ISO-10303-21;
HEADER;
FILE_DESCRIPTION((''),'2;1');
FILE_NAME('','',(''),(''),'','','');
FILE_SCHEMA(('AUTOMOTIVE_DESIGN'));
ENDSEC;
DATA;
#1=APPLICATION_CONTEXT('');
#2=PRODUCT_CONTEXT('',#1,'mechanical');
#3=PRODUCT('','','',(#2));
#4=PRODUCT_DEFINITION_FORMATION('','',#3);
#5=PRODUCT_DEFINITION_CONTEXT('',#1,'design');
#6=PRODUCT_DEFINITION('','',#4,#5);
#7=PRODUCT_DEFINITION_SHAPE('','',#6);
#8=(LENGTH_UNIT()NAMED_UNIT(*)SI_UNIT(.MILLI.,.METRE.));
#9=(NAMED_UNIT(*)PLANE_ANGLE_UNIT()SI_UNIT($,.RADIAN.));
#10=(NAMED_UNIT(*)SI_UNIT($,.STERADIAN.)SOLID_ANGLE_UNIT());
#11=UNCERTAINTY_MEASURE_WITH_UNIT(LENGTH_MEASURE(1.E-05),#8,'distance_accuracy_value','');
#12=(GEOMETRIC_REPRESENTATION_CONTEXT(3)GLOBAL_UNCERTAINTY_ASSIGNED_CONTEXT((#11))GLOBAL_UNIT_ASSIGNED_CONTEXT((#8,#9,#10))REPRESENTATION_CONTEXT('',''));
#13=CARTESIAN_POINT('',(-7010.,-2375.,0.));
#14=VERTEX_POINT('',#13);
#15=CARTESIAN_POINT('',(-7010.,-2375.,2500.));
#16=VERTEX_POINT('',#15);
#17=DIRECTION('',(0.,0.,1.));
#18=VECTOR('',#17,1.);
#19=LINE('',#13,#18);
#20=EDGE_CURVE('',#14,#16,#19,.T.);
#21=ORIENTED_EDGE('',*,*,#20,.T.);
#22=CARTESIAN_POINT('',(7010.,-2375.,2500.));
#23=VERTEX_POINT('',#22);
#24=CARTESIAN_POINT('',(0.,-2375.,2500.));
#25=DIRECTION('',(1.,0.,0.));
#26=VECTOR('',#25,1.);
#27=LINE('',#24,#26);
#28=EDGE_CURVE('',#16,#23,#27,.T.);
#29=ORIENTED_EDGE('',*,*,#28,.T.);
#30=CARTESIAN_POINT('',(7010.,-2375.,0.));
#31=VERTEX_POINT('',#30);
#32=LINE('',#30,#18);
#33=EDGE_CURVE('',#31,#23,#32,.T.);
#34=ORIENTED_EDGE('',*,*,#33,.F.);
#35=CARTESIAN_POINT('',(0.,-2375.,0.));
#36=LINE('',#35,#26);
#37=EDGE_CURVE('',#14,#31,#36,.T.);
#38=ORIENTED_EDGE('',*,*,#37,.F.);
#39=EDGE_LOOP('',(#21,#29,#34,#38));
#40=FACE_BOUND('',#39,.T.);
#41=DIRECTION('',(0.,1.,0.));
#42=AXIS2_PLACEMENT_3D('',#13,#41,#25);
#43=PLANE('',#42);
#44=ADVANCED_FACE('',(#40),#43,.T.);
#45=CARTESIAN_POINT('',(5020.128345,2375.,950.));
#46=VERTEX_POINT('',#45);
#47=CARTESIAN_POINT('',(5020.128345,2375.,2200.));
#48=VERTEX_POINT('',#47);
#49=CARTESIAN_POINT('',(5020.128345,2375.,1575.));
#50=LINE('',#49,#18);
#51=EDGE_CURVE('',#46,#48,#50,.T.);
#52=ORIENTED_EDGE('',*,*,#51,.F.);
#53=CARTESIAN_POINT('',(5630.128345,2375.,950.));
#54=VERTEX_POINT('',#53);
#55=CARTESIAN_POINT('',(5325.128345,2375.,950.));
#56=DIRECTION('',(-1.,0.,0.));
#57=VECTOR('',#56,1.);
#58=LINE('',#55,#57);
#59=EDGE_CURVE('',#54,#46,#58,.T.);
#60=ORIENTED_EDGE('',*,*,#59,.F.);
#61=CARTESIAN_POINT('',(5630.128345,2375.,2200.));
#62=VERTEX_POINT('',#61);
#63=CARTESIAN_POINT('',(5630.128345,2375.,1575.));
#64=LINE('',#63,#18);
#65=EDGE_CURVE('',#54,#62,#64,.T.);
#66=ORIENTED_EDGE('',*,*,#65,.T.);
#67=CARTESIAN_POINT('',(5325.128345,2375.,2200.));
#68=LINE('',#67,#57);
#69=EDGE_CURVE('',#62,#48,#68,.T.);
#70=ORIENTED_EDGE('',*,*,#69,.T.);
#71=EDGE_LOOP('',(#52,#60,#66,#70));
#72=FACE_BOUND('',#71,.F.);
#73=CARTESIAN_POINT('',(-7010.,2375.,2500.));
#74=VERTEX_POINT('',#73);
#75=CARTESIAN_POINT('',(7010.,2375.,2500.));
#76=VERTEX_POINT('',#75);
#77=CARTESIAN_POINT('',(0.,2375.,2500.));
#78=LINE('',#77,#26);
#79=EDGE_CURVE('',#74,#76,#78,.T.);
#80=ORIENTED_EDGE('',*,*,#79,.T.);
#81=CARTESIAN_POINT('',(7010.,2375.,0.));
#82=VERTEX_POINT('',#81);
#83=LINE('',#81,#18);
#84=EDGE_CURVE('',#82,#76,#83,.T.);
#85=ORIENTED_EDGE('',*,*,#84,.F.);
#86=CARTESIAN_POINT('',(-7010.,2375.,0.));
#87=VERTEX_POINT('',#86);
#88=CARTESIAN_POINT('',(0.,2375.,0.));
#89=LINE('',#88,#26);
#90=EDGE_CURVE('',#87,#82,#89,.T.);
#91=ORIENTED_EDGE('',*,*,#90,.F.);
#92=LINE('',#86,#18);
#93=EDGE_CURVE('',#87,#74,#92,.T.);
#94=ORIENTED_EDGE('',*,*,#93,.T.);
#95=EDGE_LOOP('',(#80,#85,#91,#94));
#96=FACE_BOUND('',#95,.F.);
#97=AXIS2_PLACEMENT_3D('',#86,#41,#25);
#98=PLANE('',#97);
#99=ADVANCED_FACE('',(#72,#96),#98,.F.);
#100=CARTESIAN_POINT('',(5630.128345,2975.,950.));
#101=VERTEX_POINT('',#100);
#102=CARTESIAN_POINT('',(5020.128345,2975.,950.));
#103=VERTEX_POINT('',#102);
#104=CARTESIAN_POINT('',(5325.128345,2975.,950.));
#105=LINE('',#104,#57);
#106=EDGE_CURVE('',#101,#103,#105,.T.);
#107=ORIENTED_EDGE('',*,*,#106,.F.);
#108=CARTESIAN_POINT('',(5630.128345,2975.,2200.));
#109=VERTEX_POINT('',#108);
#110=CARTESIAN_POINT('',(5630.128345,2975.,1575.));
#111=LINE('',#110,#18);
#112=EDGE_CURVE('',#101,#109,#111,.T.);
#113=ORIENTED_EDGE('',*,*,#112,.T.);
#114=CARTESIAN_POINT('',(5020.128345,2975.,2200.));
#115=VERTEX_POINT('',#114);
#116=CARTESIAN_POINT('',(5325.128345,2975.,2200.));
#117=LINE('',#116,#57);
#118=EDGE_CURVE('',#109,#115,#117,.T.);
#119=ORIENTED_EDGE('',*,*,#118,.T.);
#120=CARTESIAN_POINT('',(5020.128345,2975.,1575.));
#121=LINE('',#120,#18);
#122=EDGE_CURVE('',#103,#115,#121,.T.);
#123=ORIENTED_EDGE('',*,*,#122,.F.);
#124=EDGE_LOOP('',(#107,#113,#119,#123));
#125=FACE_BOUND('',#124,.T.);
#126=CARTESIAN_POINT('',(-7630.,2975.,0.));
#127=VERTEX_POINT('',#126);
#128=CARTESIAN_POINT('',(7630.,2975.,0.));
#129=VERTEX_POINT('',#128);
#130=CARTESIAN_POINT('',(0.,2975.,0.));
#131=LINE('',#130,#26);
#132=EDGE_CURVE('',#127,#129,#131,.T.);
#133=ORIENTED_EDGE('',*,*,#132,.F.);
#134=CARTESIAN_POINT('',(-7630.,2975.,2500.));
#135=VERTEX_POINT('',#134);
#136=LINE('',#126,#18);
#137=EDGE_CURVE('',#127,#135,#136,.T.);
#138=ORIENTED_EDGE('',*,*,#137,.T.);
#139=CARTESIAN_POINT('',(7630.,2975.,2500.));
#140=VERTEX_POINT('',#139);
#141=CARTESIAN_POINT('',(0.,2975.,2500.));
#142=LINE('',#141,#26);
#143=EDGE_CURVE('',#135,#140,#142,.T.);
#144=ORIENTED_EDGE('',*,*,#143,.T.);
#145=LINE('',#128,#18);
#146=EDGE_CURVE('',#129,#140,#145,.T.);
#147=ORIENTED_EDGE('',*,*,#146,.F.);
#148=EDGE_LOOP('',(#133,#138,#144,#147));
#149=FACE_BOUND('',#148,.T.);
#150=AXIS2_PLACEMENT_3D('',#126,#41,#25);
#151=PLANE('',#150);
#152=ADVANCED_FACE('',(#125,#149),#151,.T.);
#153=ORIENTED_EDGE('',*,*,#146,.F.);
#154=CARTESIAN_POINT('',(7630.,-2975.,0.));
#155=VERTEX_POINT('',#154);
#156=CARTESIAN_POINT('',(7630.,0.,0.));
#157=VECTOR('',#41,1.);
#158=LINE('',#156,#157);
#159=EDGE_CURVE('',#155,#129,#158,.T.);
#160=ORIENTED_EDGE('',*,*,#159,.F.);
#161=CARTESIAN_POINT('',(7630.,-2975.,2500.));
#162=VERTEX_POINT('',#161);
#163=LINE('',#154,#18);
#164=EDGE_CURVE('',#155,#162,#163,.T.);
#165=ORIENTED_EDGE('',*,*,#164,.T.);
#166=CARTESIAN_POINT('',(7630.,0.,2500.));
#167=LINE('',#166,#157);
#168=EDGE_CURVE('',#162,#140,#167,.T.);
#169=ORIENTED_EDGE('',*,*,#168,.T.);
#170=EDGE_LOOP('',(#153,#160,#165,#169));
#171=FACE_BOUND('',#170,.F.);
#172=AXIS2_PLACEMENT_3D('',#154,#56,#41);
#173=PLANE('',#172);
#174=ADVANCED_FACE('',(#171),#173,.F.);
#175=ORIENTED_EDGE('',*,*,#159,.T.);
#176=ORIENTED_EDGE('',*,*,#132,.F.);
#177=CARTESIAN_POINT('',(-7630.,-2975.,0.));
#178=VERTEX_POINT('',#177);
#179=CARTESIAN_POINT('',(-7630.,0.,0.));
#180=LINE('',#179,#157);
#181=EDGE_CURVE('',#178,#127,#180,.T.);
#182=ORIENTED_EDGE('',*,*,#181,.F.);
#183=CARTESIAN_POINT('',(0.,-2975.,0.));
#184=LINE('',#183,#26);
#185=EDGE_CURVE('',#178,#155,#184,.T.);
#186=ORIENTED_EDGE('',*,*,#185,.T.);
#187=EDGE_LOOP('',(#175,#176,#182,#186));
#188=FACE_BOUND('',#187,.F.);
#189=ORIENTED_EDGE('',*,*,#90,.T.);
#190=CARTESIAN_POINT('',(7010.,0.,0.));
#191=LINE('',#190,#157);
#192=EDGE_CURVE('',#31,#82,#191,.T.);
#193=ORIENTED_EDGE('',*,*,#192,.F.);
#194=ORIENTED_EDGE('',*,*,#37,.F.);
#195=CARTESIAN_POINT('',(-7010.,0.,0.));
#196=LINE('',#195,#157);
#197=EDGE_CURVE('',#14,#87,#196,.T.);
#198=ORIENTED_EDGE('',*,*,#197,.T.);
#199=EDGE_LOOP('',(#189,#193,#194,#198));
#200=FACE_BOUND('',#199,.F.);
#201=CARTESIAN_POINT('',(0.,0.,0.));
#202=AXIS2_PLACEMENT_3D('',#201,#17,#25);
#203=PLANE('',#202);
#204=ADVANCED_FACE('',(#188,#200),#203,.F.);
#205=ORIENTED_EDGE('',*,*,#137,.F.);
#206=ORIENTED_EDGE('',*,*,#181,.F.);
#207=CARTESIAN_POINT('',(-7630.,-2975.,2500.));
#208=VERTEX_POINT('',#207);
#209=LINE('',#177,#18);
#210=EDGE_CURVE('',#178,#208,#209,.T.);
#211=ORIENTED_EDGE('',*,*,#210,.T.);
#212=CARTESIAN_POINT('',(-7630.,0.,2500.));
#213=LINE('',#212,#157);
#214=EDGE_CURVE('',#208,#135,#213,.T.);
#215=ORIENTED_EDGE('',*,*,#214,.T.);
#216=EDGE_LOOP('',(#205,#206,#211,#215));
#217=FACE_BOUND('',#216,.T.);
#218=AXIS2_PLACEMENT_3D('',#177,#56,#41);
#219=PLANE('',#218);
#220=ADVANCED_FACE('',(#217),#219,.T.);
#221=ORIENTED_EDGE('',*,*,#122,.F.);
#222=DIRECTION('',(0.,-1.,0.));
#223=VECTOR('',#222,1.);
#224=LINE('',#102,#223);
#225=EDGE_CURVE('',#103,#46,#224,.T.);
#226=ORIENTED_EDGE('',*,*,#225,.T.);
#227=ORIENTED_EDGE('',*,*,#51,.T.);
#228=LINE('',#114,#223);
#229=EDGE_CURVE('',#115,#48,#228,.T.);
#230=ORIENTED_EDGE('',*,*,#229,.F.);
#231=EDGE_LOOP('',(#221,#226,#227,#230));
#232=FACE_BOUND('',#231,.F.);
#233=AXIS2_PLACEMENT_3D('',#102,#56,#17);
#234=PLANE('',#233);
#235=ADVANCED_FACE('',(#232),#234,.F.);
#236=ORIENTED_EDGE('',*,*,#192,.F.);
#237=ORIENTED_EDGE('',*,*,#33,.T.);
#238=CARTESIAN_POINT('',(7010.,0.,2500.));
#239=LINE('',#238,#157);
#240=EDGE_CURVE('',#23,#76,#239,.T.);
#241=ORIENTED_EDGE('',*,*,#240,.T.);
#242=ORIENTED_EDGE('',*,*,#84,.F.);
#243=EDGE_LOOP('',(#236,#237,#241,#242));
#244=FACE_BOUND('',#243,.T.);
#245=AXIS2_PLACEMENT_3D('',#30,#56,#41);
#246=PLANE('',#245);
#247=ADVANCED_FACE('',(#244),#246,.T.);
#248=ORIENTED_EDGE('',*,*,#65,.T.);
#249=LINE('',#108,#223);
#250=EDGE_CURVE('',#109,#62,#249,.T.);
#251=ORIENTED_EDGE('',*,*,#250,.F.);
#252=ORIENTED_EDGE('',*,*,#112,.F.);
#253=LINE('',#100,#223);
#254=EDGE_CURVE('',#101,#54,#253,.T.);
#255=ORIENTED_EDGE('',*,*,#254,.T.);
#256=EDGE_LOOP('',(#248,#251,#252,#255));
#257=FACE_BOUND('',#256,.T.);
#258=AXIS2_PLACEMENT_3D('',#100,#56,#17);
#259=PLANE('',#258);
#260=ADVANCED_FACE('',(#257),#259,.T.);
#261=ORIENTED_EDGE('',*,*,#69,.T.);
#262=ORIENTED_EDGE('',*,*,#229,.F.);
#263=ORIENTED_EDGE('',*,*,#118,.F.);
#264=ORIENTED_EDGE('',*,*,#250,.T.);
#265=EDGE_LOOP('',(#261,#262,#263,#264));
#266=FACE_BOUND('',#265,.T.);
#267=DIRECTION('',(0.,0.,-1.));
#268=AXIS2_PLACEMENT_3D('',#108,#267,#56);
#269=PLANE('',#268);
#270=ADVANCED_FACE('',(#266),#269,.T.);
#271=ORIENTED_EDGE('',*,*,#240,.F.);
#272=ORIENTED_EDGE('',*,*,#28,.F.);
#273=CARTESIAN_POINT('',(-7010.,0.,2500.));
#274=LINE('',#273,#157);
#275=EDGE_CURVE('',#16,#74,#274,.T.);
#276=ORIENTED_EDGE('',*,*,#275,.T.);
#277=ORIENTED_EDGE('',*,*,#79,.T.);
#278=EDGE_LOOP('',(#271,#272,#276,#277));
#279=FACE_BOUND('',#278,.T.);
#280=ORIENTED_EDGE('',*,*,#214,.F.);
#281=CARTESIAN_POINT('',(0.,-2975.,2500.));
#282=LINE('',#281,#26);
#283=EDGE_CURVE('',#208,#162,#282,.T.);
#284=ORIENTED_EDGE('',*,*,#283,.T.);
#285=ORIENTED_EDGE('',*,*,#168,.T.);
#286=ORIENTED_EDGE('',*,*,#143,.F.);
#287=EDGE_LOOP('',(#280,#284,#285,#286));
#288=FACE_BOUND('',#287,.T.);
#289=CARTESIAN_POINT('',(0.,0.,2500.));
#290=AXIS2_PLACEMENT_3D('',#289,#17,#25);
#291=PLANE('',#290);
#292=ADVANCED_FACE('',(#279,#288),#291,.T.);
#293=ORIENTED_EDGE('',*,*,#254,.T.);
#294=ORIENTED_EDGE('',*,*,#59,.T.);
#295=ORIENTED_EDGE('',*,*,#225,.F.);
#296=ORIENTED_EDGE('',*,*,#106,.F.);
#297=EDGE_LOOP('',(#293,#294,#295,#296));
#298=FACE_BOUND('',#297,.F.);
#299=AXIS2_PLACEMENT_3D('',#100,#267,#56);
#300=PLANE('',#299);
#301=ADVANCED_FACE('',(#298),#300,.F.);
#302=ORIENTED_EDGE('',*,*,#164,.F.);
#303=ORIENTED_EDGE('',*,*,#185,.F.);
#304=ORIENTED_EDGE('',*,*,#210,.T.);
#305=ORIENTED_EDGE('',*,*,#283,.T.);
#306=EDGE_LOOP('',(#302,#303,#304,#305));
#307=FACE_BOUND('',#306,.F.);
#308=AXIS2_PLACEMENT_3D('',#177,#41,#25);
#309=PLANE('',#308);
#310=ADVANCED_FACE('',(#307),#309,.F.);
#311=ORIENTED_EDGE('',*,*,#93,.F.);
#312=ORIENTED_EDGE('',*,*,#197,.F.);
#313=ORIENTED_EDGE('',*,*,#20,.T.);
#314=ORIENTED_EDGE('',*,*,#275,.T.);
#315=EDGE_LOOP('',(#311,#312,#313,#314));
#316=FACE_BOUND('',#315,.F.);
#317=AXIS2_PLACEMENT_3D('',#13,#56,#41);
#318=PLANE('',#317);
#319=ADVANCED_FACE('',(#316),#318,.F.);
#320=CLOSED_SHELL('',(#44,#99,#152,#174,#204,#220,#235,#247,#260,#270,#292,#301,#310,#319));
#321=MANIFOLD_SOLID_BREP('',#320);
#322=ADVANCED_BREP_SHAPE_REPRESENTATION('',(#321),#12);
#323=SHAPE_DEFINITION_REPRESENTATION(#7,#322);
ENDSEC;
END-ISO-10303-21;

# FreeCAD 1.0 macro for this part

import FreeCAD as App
import Part
import Sketcher


def add_polygon(sketch, points):
    """Adds a closed chain of lines whose ends are joined by coincident constraints."""
    first, n = sketch.GeometryCount, len(points)
    for a, b in zip(points, points[1:] + points[:1]):
        sketch.addGeometry(Part.LineSegment(App.Vector(*a, 0), App.Vector(*b, 0)), False)
    for i in range(n):
        sketch.addConstraint(Sketcher.Constraint("Coincident", first + i, 2, first + (i + 1) % n, 1))

doc = App.newDocument("Part")
body = doc.addObject("PartDesign::Body", "Body")

sketch1 = body.newObject("Sketcher::SketchObject", "Sketch")
sketch1.AttachmentSupport = (doc.getObject("XY_Plane"), [""])
sketch1.MapMode = "FlatFace"
add_polygon(sketch1, [(-7630, 2975), (-7630, -2975), (7630, -2975), (7630, 2975)])
add_polygon(sketch1, [(7010, -2375), (-7010, -2375), (-7010, 2375), (7010, 2375)])
sketch1.addConstraint(Sketcher.Constraint("Vertical", 0))
sketch1.addConstraint(Sketcher.Constraint("Horizontal", 1))
sketch1.addConstraint(Sketcher.Constraint("Vertical", 2))
sketch1.addConstraint(Sketcher.Constraint("Horizontal", 3))
sketch1.addConstraint(Sketcher.Constraint("Horizontal", 4))
sketch1.addConstraint(Sketcher.Constraint("Vertical", 5))
sketch1.addConstraint(Sketcher.Constraint("Horizontal", 6))
sketch1.addConstraint(Sketcher.Constraint("Vertical", 7))
sketch1.addConstraint(Sketcher.Constraint("Symmetric", 0, 2, 2, 2, -1, 1))
sketch1.addConstraint(Sketcher.Constraint("Symmetric", 4, 2, 6, 2, -1, 1))
sketch1.addConstraint(Sketcher.Constraint("DistanceX", 1, 1, 1, 2, 15260.0))
sketch1.addConstraint(Sketcher.Constraint("DistanceX", 4, 2, 4, 1, 14020.0))
sketch1.addConstraint(Sketcher.Constraint("DistanceY", 0, 2, 0, 1, 5950.0))
sketch1.addConstraint(Sketcher.Constraint("DistanceY", 5, 1, 5, 2, 4750.0))
pad1 = body.newObject("PartDesign::Pad", "Pad")
pad1.Profile = sketch1
pad1.Length = 2500

sketch2 = body.newObject("Sketcher::SketchObject", "Sketch001")
sketch2.AttachmentSupport = (doc.getObject("XZ_Plane"), [""])
sketch2.MapMode = "FlatFace"
sketch2.AttachmentOffset = App.Placement(App.Vector(0, 0, -2975), App.Rotation())
add_polygon(sketch2, [(5630, 2200), (5630, 950), (5020, 950), (5020, 2200)])
sketch2.addConstraint(Sketcher.Constraint("Vertical", 0))
sketch2.addConstraint(Sketcher.Constraint("Horizontal", 1))
sketch2.addConstraint(Sketcher.Constraint("Vertical", 2))
sketch2.addConstraint(Sketcher.Constraint("Horizontal", 3))
sketch2.addConstraint(Sketcher.Constraint("DistanceX", 1, 2, 1, 1, 610.0))
sketch2.addConstraint(Sketcher.Constraint("DistanceY", 0, 2, 0, 1, 1250.0))
sketch2.addConstraint(Sketcher.Constraint("DistanceY", -1, 1, 0, 2, 950.0))
sketch2.addConstraint(Sketcher.Constraint("DistanceX", -1, 1, 0, 2, 5630.128345))
pocket1 = body.newObject("PartDesign::Pocket", "Pocket")
pocket1.Profile = sketch2
pocket1.Length = 600
pocket1.Reversed = True

doc.recompute()
